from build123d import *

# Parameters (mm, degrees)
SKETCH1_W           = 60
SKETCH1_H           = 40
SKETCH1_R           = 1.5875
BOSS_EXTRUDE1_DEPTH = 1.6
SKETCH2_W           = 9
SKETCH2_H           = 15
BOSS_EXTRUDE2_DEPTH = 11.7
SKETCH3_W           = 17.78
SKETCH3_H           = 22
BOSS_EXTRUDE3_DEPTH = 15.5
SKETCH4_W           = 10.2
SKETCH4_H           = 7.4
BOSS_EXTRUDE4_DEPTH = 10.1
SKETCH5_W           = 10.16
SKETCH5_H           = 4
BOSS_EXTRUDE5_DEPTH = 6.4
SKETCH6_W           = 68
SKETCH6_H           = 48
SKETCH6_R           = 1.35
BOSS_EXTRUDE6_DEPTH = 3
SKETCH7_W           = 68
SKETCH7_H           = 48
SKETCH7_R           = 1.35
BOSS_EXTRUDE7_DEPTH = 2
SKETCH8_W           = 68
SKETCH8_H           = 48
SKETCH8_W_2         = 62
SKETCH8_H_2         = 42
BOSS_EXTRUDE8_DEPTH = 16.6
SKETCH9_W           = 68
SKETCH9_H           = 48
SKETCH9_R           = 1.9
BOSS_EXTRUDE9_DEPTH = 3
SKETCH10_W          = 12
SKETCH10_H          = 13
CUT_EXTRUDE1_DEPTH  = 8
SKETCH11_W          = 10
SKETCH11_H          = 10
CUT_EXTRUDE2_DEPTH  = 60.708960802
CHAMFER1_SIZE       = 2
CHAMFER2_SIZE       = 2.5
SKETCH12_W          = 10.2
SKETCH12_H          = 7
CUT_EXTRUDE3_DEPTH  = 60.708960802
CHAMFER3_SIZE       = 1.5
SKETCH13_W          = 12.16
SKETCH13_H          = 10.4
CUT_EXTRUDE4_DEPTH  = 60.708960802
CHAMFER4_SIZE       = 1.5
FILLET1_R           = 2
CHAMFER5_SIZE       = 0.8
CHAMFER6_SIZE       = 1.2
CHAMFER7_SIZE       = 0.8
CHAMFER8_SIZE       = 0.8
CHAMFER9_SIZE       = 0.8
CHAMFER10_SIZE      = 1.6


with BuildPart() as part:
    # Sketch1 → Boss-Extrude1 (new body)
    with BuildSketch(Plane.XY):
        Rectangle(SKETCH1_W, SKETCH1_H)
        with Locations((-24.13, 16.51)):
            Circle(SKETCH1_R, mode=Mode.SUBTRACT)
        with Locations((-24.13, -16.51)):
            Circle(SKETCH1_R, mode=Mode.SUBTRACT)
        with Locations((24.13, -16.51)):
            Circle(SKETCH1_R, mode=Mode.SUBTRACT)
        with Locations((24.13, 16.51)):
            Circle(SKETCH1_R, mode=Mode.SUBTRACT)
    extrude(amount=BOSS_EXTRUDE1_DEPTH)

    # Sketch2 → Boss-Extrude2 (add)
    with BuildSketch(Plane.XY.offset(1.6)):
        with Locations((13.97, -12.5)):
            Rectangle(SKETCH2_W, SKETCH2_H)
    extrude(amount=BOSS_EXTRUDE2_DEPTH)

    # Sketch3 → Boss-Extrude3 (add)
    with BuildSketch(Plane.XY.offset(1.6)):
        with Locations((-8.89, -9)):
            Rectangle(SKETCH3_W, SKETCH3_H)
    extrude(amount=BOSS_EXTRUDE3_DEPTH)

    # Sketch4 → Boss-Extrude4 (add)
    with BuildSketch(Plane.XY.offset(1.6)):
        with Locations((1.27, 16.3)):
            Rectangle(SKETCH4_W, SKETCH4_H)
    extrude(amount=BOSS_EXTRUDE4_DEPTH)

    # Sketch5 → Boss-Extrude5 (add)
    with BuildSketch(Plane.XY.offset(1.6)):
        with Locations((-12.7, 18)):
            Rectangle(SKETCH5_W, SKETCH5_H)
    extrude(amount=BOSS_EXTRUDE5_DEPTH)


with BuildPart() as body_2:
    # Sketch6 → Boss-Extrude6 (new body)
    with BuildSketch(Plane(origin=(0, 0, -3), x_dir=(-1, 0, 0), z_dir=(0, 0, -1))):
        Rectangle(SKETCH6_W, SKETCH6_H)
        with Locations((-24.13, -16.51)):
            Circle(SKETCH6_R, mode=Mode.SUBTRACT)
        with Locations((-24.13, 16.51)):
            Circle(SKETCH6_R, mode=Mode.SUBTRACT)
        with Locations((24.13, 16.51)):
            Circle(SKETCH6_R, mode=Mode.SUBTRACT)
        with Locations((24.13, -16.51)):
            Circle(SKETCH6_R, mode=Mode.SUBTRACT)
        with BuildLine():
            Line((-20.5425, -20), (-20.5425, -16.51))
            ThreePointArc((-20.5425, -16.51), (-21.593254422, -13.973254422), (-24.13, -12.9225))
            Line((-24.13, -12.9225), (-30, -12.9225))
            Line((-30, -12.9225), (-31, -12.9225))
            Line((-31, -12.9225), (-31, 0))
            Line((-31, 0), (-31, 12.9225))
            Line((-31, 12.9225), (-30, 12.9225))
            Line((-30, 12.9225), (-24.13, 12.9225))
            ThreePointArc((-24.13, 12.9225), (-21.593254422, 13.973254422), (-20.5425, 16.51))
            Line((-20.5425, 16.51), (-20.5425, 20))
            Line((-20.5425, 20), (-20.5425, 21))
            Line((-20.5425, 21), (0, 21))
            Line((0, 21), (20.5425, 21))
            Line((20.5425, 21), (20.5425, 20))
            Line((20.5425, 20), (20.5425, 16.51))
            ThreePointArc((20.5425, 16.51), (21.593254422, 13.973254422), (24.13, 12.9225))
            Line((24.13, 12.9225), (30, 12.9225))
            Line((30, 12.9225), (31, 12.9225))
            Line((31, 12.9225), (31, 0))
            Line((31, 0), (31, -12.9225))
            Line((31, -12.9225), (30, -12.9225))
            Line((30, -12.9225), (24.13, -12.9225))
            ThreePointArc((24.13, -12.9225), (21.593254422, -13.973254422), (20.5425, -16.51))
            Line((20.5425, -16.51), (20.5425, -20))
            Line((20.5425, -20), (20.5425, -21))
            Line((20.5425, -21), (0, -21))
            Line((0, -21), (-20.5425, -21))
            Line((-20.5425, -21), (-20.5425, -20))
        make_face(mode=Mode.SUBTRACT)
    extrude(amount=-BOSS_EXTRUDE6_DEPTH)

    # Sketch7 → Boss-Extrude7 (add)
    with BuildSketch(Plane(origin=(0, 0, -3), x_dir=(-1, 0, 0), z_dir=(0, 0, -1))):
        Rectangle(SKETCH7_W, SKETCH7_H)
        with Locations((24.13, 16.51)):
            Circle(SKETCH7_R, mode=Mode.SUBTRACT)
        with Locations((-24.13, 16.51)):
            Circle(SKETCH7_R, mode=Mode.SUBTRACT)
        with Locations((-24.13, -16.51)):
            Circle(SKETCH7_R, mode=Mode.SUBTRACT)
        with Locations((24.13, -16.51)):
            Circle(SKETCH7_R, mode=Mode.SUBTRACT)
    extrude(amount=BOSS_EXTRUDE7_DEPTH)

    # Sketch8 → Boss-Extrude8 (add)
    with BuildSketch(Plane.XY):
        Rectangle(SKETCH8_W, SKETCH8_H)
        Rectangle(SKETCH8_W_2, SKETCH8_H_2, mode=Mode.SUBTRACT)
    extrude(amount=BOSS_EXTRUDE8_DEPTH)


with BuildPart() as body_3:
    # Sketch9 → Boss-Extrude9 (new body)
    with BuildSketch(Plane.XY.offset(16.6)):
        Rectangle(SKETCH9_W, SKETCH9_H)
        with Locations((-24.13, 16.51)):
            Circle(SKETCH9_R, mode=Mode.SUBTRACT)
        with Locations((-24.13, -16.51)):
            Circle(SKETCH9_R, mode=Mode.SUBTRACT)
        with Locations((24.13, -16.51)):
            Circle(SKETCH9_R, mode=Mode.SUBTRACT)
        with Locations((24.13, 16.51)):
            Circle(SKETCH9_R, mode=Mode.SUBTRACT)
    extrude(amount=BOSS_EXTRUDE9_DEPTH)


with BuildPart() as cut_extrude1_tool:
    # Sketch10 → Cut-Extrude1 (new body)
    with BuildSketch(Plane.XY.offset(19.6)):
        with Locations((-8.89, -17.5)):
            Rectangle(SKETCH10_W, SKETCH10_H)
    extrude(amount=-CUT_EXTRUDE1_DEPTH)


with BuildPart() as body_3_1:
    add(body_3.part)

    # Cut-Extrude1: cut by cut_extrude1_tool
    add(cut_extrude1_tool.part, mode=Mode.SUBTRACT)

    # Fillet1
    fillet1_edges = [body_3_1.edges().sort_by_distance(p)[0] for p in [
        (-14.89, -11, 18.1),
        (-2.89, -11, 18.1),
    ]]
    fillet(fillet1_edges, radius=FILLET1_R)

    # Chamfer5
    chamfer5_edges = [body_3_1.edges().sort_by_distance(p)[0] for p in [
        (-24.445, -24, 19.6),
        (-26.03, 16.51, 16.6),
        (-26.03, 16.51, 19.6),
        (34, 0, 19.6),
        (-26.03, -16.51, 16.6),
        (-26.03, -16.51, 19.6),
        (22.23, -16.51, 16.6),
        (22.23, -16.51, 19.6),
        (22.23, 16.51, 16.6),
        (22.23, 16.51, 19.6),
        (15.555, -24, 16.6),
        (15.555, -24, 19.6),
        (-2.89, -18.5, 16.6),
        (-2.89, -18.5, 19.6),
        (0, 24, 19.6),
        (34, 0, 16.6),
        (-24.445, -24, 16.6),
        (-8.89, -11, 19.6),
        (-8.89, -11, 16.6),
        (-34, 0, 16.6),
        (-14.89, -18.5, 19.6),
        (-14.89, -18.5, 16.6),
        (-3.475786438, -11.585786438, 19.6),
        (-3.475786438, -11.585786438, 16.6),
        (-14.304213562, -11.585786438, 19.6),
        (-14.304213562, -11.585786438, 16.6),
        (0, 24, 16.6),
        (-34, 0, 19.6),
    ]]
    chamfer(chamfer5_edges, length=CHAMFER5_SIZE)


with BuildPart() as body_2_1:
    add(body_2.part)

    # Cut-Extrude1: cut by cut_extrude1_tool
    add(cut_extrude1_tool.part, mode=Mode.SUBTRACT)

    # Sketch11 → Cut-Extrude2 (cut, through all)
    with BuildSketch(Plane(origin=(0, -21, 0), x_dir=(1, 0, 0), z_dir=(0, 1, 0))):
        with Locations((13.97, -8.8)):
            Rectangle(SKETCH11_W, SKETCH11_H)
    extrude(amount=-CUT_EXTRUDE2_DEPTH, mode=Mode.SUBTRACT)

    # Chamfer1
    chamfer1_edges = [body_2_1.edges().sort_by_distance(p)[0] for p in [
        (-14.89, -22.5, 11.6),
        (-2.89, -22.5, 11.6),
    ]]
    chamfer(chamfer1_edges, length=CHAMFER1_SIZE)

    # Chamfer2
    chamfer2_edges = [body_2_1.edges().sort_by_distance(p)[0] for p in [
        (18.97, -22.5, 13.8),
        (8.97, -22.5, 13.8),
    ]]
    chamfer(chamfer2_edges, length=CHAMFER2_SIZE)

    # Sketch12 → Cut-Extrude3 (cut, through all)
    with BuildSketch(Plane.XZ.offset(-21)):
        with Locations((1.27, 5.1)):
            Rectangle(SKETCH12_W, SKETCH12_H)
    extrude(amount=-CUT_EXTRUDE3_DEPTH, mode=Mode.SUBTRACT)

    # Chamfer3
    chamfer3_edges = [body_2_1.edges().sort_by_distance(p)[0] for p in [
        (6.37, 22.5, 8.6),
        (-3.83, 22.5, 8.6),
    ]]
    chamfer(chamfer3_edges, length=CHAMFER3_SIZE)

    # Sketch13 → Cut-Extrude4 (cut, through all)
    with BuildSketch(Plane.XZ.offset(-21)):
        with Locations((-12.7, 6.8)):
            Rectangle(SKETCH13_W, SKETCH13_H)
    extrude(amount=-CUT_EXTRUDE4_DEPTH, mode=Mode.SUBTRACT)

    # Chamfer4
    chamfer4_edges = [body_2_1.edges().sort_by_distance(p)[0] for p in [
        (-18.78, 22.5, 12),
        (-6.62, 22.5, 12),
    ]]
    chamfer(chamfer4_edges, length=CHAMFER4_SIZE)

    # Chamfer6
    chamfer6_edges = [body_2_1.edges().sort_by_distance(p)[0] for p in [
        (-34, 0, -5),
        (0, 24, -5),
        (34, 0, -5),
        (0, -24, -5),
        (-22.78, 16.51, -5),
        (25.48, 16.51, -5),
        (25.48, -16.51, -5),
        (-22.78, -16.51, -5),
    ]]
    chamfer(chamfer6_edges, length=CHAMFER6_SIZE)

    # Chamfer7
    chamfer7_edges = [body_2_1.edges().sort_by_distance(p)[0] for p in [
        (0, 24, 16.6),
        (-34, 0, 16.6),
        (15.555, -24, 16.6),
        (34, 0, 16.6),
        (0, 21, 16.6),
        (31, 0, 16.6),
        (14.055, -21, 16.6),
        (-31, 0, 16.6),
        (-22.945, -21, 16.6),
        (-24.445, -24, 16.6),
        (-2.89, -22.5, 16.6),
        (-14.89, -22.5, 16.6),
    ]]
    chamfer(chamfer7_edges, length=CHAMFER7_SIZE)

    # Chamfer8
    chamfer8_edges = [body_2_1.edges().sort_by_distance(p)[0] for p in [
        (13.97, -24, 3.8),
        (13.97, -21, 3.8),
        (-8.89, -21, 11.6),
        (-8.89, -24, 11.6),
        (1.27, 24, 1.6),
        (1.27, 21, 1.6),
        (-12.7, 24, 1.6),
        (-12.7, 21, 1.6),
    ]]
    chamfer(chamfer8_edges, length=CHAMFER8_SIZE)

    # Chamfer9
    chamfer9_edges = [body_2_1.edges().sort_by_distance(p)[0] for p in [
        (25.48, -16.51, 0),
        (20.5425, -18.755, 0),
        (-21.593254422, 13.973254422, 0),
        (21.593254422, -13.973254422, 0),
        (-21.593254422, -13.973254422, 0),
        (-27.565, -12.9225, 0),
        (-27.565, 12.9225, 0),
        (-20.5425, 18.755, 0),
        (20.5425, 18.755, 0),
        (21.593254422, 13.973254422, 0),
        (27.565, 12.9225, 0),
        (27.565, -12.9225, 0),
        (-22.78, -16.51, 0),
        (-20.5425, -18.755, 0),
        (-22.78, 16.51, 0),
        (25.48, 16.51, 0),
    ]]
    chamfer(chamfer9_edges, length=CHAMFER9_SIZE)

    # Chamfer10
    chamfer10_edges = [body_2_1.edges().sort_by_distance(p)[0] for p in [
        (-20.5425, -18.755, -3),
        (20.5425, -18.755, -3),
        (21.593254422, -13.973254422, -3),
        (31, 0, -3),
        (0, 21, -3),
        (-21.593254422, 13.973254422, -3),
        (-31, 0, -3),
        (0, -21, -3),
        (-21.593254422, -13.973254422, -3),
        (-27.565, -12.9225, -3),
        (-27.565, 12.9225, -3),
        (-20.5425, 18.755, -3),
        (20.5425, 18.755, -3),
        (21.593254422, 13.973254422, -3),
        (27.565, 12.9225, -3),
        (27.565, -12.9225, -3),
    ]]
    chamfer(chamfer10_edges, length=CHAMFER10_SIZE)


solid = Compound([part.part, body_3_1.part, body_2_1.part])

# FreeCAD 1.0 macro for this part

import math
import FreeCAD as App
import Part
import Sketcher

V = App.Vector


def edges_at(feature, points):
    """Names of the edges that pass closest to the given points."""
    edges = feature.Shape.Edges
    near = lambda p: min(range(len(edges)), key=lambda i: edges[i].distToShape(Part.Vertex(*p))[0])
    return sorted({f"Edge{near(p) + 1}" for p in points})

doc = App.newDocument("Part")
body = doc.addObject("PartDesign::Body", "Body")

# Sketch on XY plane
sketch1 = body.newObject("Sketcher::SketchObject", "Sketch")
sketch1.AttachmentSupport = (doc.getObject("XY_Plane"), [""])
sketch1.MapMode = "FlatFace"
sketch1.addGeometry(Part.LineSegment(V(-30, 20, 0), V(-30, -20, 0)), False)
sketch1.addGeometry(Part.LineSegment(V(-30, -20, 0), V(30, -20, 0)), False)
sketch1.addGeometry(Part.LineSegment(V(30, -20, 0), V(30, 20, 0)), False)
sketch1.addGeometry(Part.LineSegment(V(30, 20, 0), V(-30, 20, 0)), False)
sketch1.addGeometry(Part.Circle(V(-24.13, -16.51, 0), V(0, 0, 1), 1.5875), False)
sketch1.addGeometry(Part.Circle(V(24.13, -16.51, 0), V(0, 0, 1), 1.5875), False)
sketch1.addGeometry(Part.Circle(V(-24.13, 16.51, 0), V(0, 0, 1), 1.5875), False)
sketch1.addGeometry(Part.Circle(V(24.13, 16.51, 0), V(0, 0, 1), 1.5875), False)
sketch1.addConstraint(Sketcher.Constraint("Coincident", 0, 2, 1, 1))
sketch1.addConstraint(Sketcher.Constraint("Coincident", 1, 2, 2, 1))
sketch1.addConstraint(Sketcher.Constraint("Coincident", 2, 2, 3, 1))
sketch1.addConstraint(Sketcher.Constraint("Coincident", 3, 2, 0, 1))
sketch1.addConstraint(Sketcher.Constraint("Vertical", 0))
sketch1.addConstraint(Sketcher.Constraint("Horizontal", 1))
sketch1.addConstraint(Sketcher.Constraint("Vertical", 2))
sketch1.addConstraint(Sketcher.Constraint("Horizontal", 3))
sketch1.addConstraint(Sketcher.Constraint("Equal", 4, 5))
sketch1.addConstraint(Sketcher.Constraint("Equal", 5, 6))
sketch1.addConstraint(Sketcher.Constraint("Equal", 6, 7))
sketch1.addConstraint(Sketcher.Constraint("Symmetric", 5, 3, 6, 3, -1, 1))
sketch1.addConstraint(Sketcher.Constraint("Symmetric", 4, 3, 7, 3, -1, 1))
sketch1.addConstraint(Sketcher.Constraint("Symmetric", 0, 2, 2, 2, -1, 1))
sketch1.addConstraint(Sketcher.Constraint("Symmetric", 4, 3, 5, 3, -2))
sketch1.addConstraint(Sketcher.Constraint("DistanceX", 1, 1, 1, 2, 60.0))
sketch1.addConstraint(Sketcher.Constraint("DistanceY", 0, 2, 0, 1, 40.0))
sketch1.addConstraint(Sketcher.Constraint("Diameter", 4, 3.175))
sketch1.addConstraint(Sketcher.Constraint("DistanceX", 4, 3, -1, 1, 24.13))
sketch1.addConstraint(Sketcher.Constraint("DistanceY", 4, 3, -1, 1, 16.51))
pad1 = body.newObject("PartDesign::Pad", "Pad")
pad1.Profile = sketch1
pad1.Length = 1.6

# Sketch on XY plane
sketch2 = body.newObject("Sketcher::SketchObject", "Sketch001")
sketch2.AttachmentSupport = (doc.getObject("XY_Plane"), [""])
sketch2.MapMode = "FlatFace"
sketch2.AttachmentOffset = App.Placement(V(0, 0, 1.6), App.Rotation())
sketch2.addGeometry(Part.LineSegment(V(9.47, -5, 0), V(9.47, -20, 0)), False)
sketch2.addGeometry(Part.LineSegment(V(9.47, -20, 0), V(18.47, -20, 0)), False)
sketch2.addGeometry(Part.LineSegment(V(18.47, -20, 0), V(18.47, -5, 0)), False)
sketch2.addGeometry(Part.LineSegment(V(18.47, -5, 0), V(9.47, -5, 0)), False)
sketch2.addConstraint(Sketcher.Constraint("Coincident", 0, 2, 1, 1))
sketch2.addConstraint(Sketcher.Constraint("Coincident", 1, 2, 2, 1))
sketch2.addConstraint(Sketcher.Constraint("Coincident", 2, 2, 3, 1))
sketch2.addConstraint(Sketcher.Constraint("Coincident", 3, 2, 0, 1))
sketch2.addConstraint(Sketcher.Constraint("Vertical", 0))
sketch2.addConstraint(Sketcher.Constraint("Horizontal", 1))
sketch2.addConstraint(Sketcher.Constraint("Vertical", 2))
sketch2.addConstraint(Sketcher.Constraint("Horizontal", 3))
sketch2.addConstraint(Sketcher.Constraint("DistanceX", 1, 1, 1, 2, 9.0))
sketch2.addConstraint(Sketcher.Constraint("DistanceY", 0, 2, 0, 1, 15.0))
sketch2.addConstraint(Sketcher.Constraint("DistanceY", 0, 2, -1, 1, 20.0))
sketch2.addConstraint(Sketcher.Constraint("DistanceX", -1, 1, 0, 2, 9.47))
pad2 = body.newObject("PartDesign::Pad", "Pad001")
pad2.Profile = sketch2
pad2.Length = 11.7

# Sketch on XY plane
sketch3 = body.newObject("Sketcher::SketchObject", "Sketch002")
sketch3.AttachmentSupport = (doc.getObject("XY_Plane"), [""])
sketch3.MapMode = "FlatFace"
sketch3.AttachmentOffset = App.Placement(V(0, 0, 1.6), App.Rotation())
sketch3.addGeometry(Part.LineSegment(V(-17.78, 2, 0), V(-17.78, -20, 0)), False)
sketch3.addGeometry(Part.LineSegment(V(-17.78, -20, 0), V(0, -20, 0)), False)
sketch3.addGeometry(Part.LineSegment(V(0, -20, 0), V(0, 2, 0)), False)
sketch3.addGeometry(Part.LineSegment(V(0, 2, 0), V(-17.78, 2, 0)), False)
sketch3.addConstraint(Sketcher.Constraint("Coincident", 0, 2, 1, 1))
sketch3.addConstraint(Sketcher.Constraint("Coincident", 1, 2, 2, 1))
sketch3.addConstraint(Sketcher.Constraint("Coincident", 2, 2, 3, 1))
sketch3.addConstraint(Sketcher.Constraint("Coincident", 3, 2, 0, 1))
sketch3.addConstraint(Sketcher.Constraint("Vertical", 0))
sketch3.addConstraint(Sketcher.Constraint("Horizontal", 1))
sketch3.addConstraint(Sketcher.Constraint("Vertical", 2))
sketch3.addConstraint(Sketcher.Constraint("Horizontal", 3))
sketch3.addConstraint(Sketcher.Constraint("PointOnObject", 1, 2, -2))
sketch3.addConstraint(Sketcher.Constraint("DistanceY", 0, 2, 0, 1, 22.0))
sketch3.addConstraint(Sketcher.Constraint("DistanceY", 0, 2, -1, 1, 20.0))
sketch3.addConstraint(Sketcher.Constraint("DistanceX", 1, 1, 1, 2, 17.78))
pad3 = body.newObject("PartDesign::Pad", "Pad002")
pad3.Profile = sketch3
pad3.Length = 15.5

# Sketch on XY plane
sketch4 = body.newObject("Sketcher::SketchObject", "Sketch003")
sketch4.AttachmentSupport = (doc.getObject("XY_Plane"), [""])
sketch4.MapMode = "FlatFace"
sketch4.AttachmentOffset = App.Placement(V(0, 0, 1.6), App.Rotation())
sketch4.addGeometry(Part.LineSegment(V(-3.83, 20, 0), V(-3.83, 12.6, 0)), False)
sketch4.addGeometry(Part.LineSegment(V(-3.83, 12.6, 0), V(6.37, 12.6, 0)), False)
sketch4.addGeometry(Part.LineSegment(V(6.37, 12.6, 0), V(6.37, 20, 0)), False)
sketch4.addGeometry(Part.LineSegment(V(6.37, 20, 0), V(-3.83, 20, 0)), False)
sketch4.addConstraint(Sketcher.Constraint("Coincident", 0, 2, 1, 1))
sketch4.addConstraint(Sketcher.Constraint("Coincident", 1, 2, 2, 1))
sketch4.addConstraint(Sketcher.Constraint("Coincident", 2, 2, 3, 1))
sketch4.addConstraint(Sketcher.Constraint("Coincident", 3, 2, 0, 1))
sketch4.addConstraint(Sketcher.Constraint("Vertical", 0))
sketch4.addConstraint(Sketcher.Constraint("Horizontal", 1))
sketch4.addConstraint(Sketcher.Constraint("Vertical", 2))
sketch4.addConstraint(Sketcher.Constraint("Horizontal", 3))
sketch4.addConstraint(Sketcher.Constraint("DistanceX", 1, 1, 1, 2, 10.2))
sketch4.addConstraint(Sketcher.Constraint("DistanceY", 0, 2, 0, 1, 7.4))
sketch4.addConstraint(Sketcher.Constraint("DistanceY", -1, 1, 2, 2, 20.0))
sketch4.addConstraint(Sketcher.Constraint("DistanceX", 0, 2, -1, 1, 3.83))
pad4 = body.newObject("PartDesign::Pad", "Pad003")
pad4.Profile = sketch4
pad4.Length = 10.1

# Sketch on XY plane
sketch5 = body.newObject("Sketcher::SketchObject", "Sketch004")
sketch5.AttachmentSupport = (doc.getObject("XY_Plane"), [""])
sketch5.MapMode = "FlatFace"
sketch5.AttachmentOffset = App.Placement(V(0, 0, 1.6), App.Rotation())
sketch5.addGeometry(Part.LineSegment(V(-17.78, 20, 0), V(-17.78, 16, 0)), False)
sketch5.addGeometry(Part.LineSegment(V(-17.78, 16, 0), V(-7.62, 16, 0)), False)
sketch5.addGeometry(Part.LineSegment(V(-7.62, 16, 0), V(-7.62, 20, 0)), False)
sketch5.addGeometry(Part.LineSegment(V(-7.62, 20, 0), V(-17.78, 20, 0)), False)
sketch5.addConstraint(Sketcher.Constraint("Coincident", 0, 2, 1, 1))
sketch5.addConstraint(Sketcher.Constraint("Coincident", 1, 2, 2, 1))
sketch5.addConstraint(Sketcher.Constraint("Coincident", 2, 2, 3, 1))
sketch5.addConstraint(Sketcher.Constraint("Coincident", 3, 2, 0, 1))
sketch5.addConstraint(Sketcher.Constraint("Vertical", 0))
sketch5.addConstraint(Sketcher.Constraint("Horizontal", 1))
sketch5.addConstraint(Sketcher.Constraint("Vertical", 2))
sketch5.addConstraint(Sketcher.Constraint("Horizontal", 3))
sketch5.addConstraint(Sketcher.Constraint("DistanceY", 0, 2, 0, 1, 4.0))
sketch5.addConstraint(Sketcher.Constraint("DistanceY", -1, 1, 0, 2, 16.0))
sketch5.addConstraint(Sketcher.Constraint("DistanceX", 1, 1, 1, 2, 10.16))
sketch5.addConstraint(Sketcher.Constraint("DistanceX", 0, 2, -1, 1, 17.78))
pad5 = body.newObject("PartDesign::Pad", "Pad004")
pad5.Profile = sketch5
pad5.Length = 6.4
body2 = doc.addObject("PartDesign::Body", "Body001")

# Sketch on XY plane
sketch6 = body2.newObject("Sketcher::SketchObject", "Sketch005")
sketch6.AttachmentSupport = (doc.getObject("XY_Plane001"), [""])
sketch6.MapMode = "FlatFace"
sketch6.AttachmentOffset = App.Placement(V(0, 0, -3), App.Rotation())
sketch6.addGeometry(Part.LineSegment(V(34, 24, 0), V(34, -24, 0)), False)
sketch6.addGeometry(Part.LineSegment(V(34, -24, 0), V(-34, -24, 0)), False)
sketch6.addGeometry(Part.LineSegment(V(-34, -24, 0), V(-34, 24, 0)), False)
sketch6.addGeometry(Part.LineSegment(V(-34, 24, 0), V(34, 24, 0)), False)
sketch6.addGeometry(Part.Circle(V(24.13, -16.51, 0), V(0, 0, 1), 1.35), False)
sketch6.addGeometry(Part.Circle(V(-24.13, -16.51, 0), V(0, 0, 1), 1.35), False)
sketch6.addGeometry(Part.Circle(V(24.13, 16.51, 0), V(0, 0, 1), 1.35), False)
sketch6.addGeometry(Part.LineSegment(V(20.5425, -21, 0), V(20.5425, -16.51, 0)), False)
sketch6.addGeometry(Part.ArcOfCircle(Part.Circle(V(24.13, -16.51, 0), V(0, 0, 1), 3.5875), math.radians(90), math.radians(180)), False)
sketch6.addGeometry(Part.LineSegment(V(24.13, -12.9225, 0), V(31, -12.9225, 0)), False)
sketch6.addGeometry(Part.LineSegment(V(31, -12.9225, 0), V(31, 12.9225, 0)), False)
sketch6.addGeometry(Part.LineSegment(V(31, 12.9225, 0), V(24.13, 12.9225, 0)), False)
sketch6.addGeometry(Part.ArcOfCircle(Part.Circle(V(24.13, 16.51, 0), V(0, 0, 1), 3.5875), math.radians(180), math.radians(270)), False)
sketch6.addGeometry(Part.LineSegment(V(20.5425, 16.51, 0), V(20.5425, 21, 0)), False)
sketch6.addGeometry(Part.LineSegment(V(20.5425, 21, 0), V(-20.5425, 21, 0)), False)
sketch6.addGeometry(Part.LineSegment(V(-20.5425, 21, 0), V(-20.5425, 16.51, 0)), False)
sketch6.addGeometry(Part.ArcOfCircle(Part.Circle(V(-24.13, 16.51, 0), V(0, 0, 1), 3.5875), math.radians(-90), math.radians(0)), False)
sketch6.addGeometry(Part.LineSegment(V(-24.13, 12.9225, 0), V(-31, 12.9225, 0)), False)
sketch6.addGeometry(Part.LineSegment(V(-31, 12.9225, 0), V(-31, -12.9225, 0)), False)
sketch6.addGeometry(Part.LineSegment(V(-31, -12.9225, 0), V(-24.13, -12.9225, 0)), False)
sketch6.addGeometry(Part.ArcOfCircle(Part.Circle(V(-24.13, -16.51, 0), V(0, 0, 1), 3.5875), math.radians(0), math.radians(90)), False)
sketch6.addGeometry(Part.LineSegment(V(-20.5425, -16.51, 0), V(-20.5425, -21, 0)), False)
sketch6.addGeometry(Part.LineSegment(V(-20.5425, -21, 0), V(20.5425, -21, 0)), False)
sketch6.addGeometry(Part.Circle(V(-24.13, 16.51, 0), V(0, 0, 1), 1.35), False)
sketch6.addConstraint(Sketcher.Constraint("Coincident", 0, 2, 1, 1))
sketch6.addConstraint(Sketcher.Constraint("Coincident", 1, 2, 2, 1))
sketch6.addConstraint(Sketcher.Constraint("Coincident", 2, 2, 3, 1))
sketch6.addConstraint(Sketcher.Constraint("Coincident", 3, 2, 0, 1))
sketch6.addConstraint(Sketcher.Constraint("Tangent", 7, 2, 8, 2))
sketch6.addConstraint(Sketcher.Constraint("Tangent", 8, 1, 9, 1))
sketch6.addConstraint(Sketcher.Constraint("Coincident", 9, 2, 10, 1))
sketch6.addConstraint(Sketcher.Constraint("Coincident", 10, 2, 11, 1))
sketch6.addConstraint(Sketcher.Constraint("Tangent", 11, 2, 12, 2))
sketch6.addConstraint(Sketcher.Constraint("Tangent", 12, 1, 13, 1))
sketch6.addConstraint(Sketcher.Constraint("Coincident", 13, 2, 14, 1))
sketch6.addConstraint(Sketcher.Constraint("Coincident", 14, 2, 15, 1))
sketch6.addConstraint(Sketcher.Constraint("Tangent", 15, 2, 16, 2))
sketch6.addConstraint(Sketcher.Constraint("Tangent", 16, 1, 17, 1))
sketch6.addConstraint(Sketcher.Constraint("Coincident", 17, 2, 18, 1))
sketch6.addConstraint(Sketcher.Constraint("Coincident", 18, 2, 19, 1))
sketch6.addConstraint(Sketcher.Constraint("Tangent", 19, 2, 20, 2))
sketch6.addConstraint(Sketcher.Constraint("Tangent", 20, 1, 21, 1))
sketch6.addConstraint(Sketcher.Constraint("Coincident", 21, 2, 22, 1))
sketch6.addConstraint(Sketcher.Constraint("Coincident", 22, 2, 7, 1))
sketch6.addConstraint(Sketcher.Constraint("Vertical", 0))
sketch6.addConstraint(Sketcher.Constraint("Horizontal", 1))
sketch6.addConstraint(Sketcher.Constraint("Vertical", 2))
sketch6.addConstraint(Sketcher.Constraint("Horizontal", 3))
sketch6.addConstraint(Sketcher.Constraint("Vertical", 7))
sketch6.addConstraint(Sketcher.Constraint("Horizontal", 9))
sketch6.addConstraint(Sketcher.Constraint("Vertical", 10))
sketch6.addConstraint(Sketcher.Constraint("Horizontal", 11))
sketch6.addConstraint(Sketcher.Constraint("Vertical", 13))
sketch6.addConstraint(Sketcher.Constraint("Horizontal", 14))
sketch6.addConstraint(Sketcher.Constraint("Vertical", 15))
sketch6.addConstraint(Sketcher.Constraint("Horizontal", 17))
sketch6.addConstraint(Sketcher.Constraint("Vertical", 18))
sketch6.addConstraint(Sketcher.Constraint("Horizontal", 19))
sketch6.addConstraint(Sketcher.Constraint("Vertical", 21))
sketch6.addConstraint(Sketcher.Constraint("Horizontal", 22))
sketch6.addConstraint(Sketcher.Constraint("Coincident", 8, 3, 4, 3))
sketch6.addConstraint(Sketcher.Constraint("Coincident", 12, 3, 6, 3))
sketch6.addConstraint(Sketcher.Constraint("Coincident", 20, 3, 5, 3))
sketch6.addConstraint(Sketcher.Constraint("Coincident", 23, 3, 16, 3))
sketch6.addConstraint(Sketcher.Constraint("Equal", 4, 5))
sketch6.addConstraint(Sketcher.Constraint("Equal", 5, 6))
sketch6.addConstraint(Sketcher.Constraint("Equal", 8, 12))
sketch6.addConstraint(Sketcher.Constraint("Equal", 12, 16))
sketch6.addConstraint(Sketcher.Constraint("Equal", 16, 20))
sketch6.addConstraint(Sketcher.Constraint("Equal", 6, 23))
sketch6.addConstraint(Sketcher.Constraint("Symmetric", 5, 3, 6, 3, -1, 1))
sketch6.addConstraint(Sketcher.Constraint("Symmetric", 4, 3, 16, 3, -1, 1))
sketch6.addConstraint(Sketcher.Constraint("Symmetric", 0, 2, 2, 2, -1, 1))
sketch6.addConstraint(Sketcher.Constraint("Symmetric", 4, 3, 5, 3, -2))
sketch6.addConstraint(Sketcher.Constraint("Equal", 11, 17))
sketch6.addConstraint(Sketcher.Constraint("Equal", 7, 13))
sketch6.addConstraint(Sketcher.Constraint("Diameter", 4, 2.7))
sketch6.addConstraint(Sketcher.Constraint("DistanceX", 1, 2, 1, 1, 68.0))
sketch6.addConstraint(Sketcher.Constraint("DistanceY", 0, 2, 0, 1, 48.0))
sketch6.addConstraint(Sketcher.Constraint("DistanceX", -1, 1, 9, 2, 31.0))
sketch6.addConstraint(Sketcher.Constraint("DistanceY", -1, 1, 13, 2, 21.0))
sketch6.addConstraint(Sketcher.Constraint("DistanceX", 9, 1, 9, 2, 6.87))
sketch6.addConstraint(Sketcher.Constraint("DistanceY", 7, 1, 7, 2, 4.49))
sketch6.addConstraint(Sketcher.Constraint("Radius", 8, 3.5875))
pad6 = body2.newObject("PartDesign::Pad", "Pad005")
pad6.Profile = sketch6
pad6.Length = 3

# Sketch on XY plane
sketch7 = body2.newObject("Sketcher::SketchObject", "Sketch006")
sketch7.AttachmentSupport = (doc.getObject("XY_Plane001"), [""])
sketch7.MapMode = "FlatFace"
sketch7.AttachmentOffset = App.Placement(V(0, 0, -3), App.Rotation())
sketch7.addGeometry(Part.LineSegment(V(34, 24, 0), V(34, -24, 0)), False)
sketch7.addGeometry(Part.LineSegment(V(34, -24, 0), V(-34, -24, 0)), False)
sketch7.addGeometry(Part.LineSegment(V(-34, -24, 0), V(-34, 24, 0)), False)
sketch7.addGeometry(Part.LineSegment(V(-34, 24, 0), V(34, 24, 0)), False)
sketch7.addGeometry(Part.Circle(V(24.13, -16.51, 0), V(0, 0, 1), 1.35), False)
sketch7.addGeometry(Part.Circle(V(-24.13, -16.51, 0), V(0, 0, 1), 1.35), False)
sketch7.addGeometry(Part.Circle(V(24.13, 16.51, 0), V(0, 0, 1), 1.35), False)
sketch7.addGeometry(Part.Circle(V(-24.13, 16.51, 0), V(0, 0, 1), 1.35), False)
sketch7.addConstraint(Sketcher.Constraint("Coincident", 0, 2, 1, 1))
sketch7.addConstraint(Sketcher.Constraint("Coincident", 1, 2, 2, 1))
sketch7.addConstraint(Sketcher.Constraint("Coincident", 2, 2, 3, 1))
sketch7.addConstraint(Sketcher.Constraint("Coincident", 3, 2, 0, 1))
sketch7.addConstraint(Sketcher.Constraint("Vertical", 0))
sketch7.addConstraint(Sketcher.Constraint("Horizontal", 1))
sketch7.addConstraint(Sketcher.Constraint("Vertical", 2))
sketch7.addConstraint(Sketcher.Constraint("Horizontal", 3))
sketch7.addConstraint(Sketcher.Constraint("Equal", 4, 5))
sketch7.addConstraint(Sketcher.Constraint("Equal", 5, 6))
sketch7.addConstraint(Sketcher.Constraint("Equal", 6, 7))
sketch7.addConstraint(Sketcher.Constraint("Symmetric", 5, 3, 6, 3, -1, 1))
sketch7.addConstraint(Sketcher.Constraint("Symmetric", 4, 3, 7, 3, -1, 1))
sketch7.addConstraint(Sketcher.Constraint("Symmetric", 0, 2, 2, 2, -1, 1))
sketch7.addConstraint(Sketcher.Constraint("Symmetric", 4, 3, 5, 3, -2))
sketch7.addConstraint(Sketcher.Constraint("Diameter", 4, 2.7))
sketch7.addConstraint(Sketcher.Constraint("DistanceX", 1, 2, 1, 1, 68.0))
sketch7.addConstraint(Sketcher.Constraint("DistanceY", 0, 2, 0, 1, 48.0))
sketch7.addConstraint(Sketcher.Constraint("DistanceX", -1, 1, 4, 3, 24.13))
sketch7.addConstraint(Sketcher.Constraint("DistanceY", 4, 3, -1, 1, 16.51))
pad7 = body2.newObject("PartDesign::Pad", "Pad006")
pad7.Profile = sketch7
pad7.Length = 2
pad7.Reversed = True

# Sketch on XY plane
sketch8 = body2.newObject("Sketcher::SketchObject", "Sketch007")
sketch8.AttachmentSupport = (doc.getObject("XY_Plane001"), [""])
sketch8.MapMode = "FlatFace"
sketch8.addGeometry(Part.LineSegment(V(-34, 24, 0), V(-34, -24, 0)), False)
sketch8.addGeometry(Part.LineSegment(V(-34, -24, 0), V(34, -24, 0)), False)
sketch8.addGeometry(Part.LineSegment(V(34, -24, 0), V(34, 24, 0)), False)
sketch8.addGeometry(Part.LineSegment(V(34, 24, 0), V(-34, 24, 0)), False)
sketch8.addGeometry(Part.LineSegment(V(31, -21, 0), V(-31, -21, 0)), False)
sketch8.addGeometry(Part.LineSegment(V(-31, -21, 0), V(-31, 21, 0)), False)
sketch8.addGeometry(Part.LineSegment(V(-31, 21, 0), V(31, 21, 0)), False)
sketch8.addGeometry(Part.LineSegment(V(31, 21, 0), V(31, -21, 0)), False)
sketch8.addConstraint(Sketcher.Constraint("Coincident", 0, 2, 1, 1))
sketch8.addConstraint(Sketcher.Constraint("Coincident", 1, 2, 2, 1))
sketch8.addConstraint(Sketcher.Constraint("Coincident", 2, 2, 3, 1))
sketch8.addConstraint(Sketcher.Constraint("Coincident", 3, 2, 0, 1))
sketch8.addConstraint(Sketcher.Constraint("Coincident", 4, 2, 5, 1))
sketch8.addConstraint(Sketcher.Constraint("Coincident", 5, 2, 6, 1))
sketch8.addConstraint(Sketcher.Constraint("Coincident", 6, 2, 7, 1))
sketch8.addConstraint(Sketcher.Constraint("Coincident", 7, 2, 4, 1))
sketch8.addConstraint(Sketcher.Constraint("Vertical", 0))
sketch8.addConstraint(Sketcher.Constraint("Horizontal", 1))
sketch8.addConstraint(Sketcher.Constraint("Vertical", 2))
sketch8.addConstraint(Sketcher.Constraint("Horizontal", 3))
sketch8.addConstraint(Sketcher.Constraint("Horizontal", 4))
sketch8.addConstraint(Sketcher.Constraint("Vertical", 5))
sketch8.addConstraint(Sketcher.Constraint("Horizontal", 6))
sketch8.addConstraint(Sketcher.Constraint("Vertical", 7))
sketch8.addConstraint(Sketcher.Constraint("Symmetric", 0, 2, 2, 2, -1, 1))
sketch8.addConstraint(Sketcher.Constraint("Symmetric", 4, 2, 6, 2, -1, 1))
sketch8.addConstraint(Sketcher.Constraint("DistanceX", 1, 1, 1, 2, 68.0))
sketch8.addConstraint(Sketcher.Constraint("DistanceX", 4, 2, 4, 1, 62.0))
sketch8.addConstraint(Sketcher.Constraint("DistanceY", 0, 2, 0, 1, 48.0))
sketch8.addConstraint(Sketcher.Constraint("DistanceY", 5, 1, 5, 2, 42.0))
pad8 = body2.newObject("PartDesign::Pad", "Pad007")
pad8.Profile = sketch8
pad8.Length = 16.6
body3 = doc.addObject("PartDesign::Body", "Body002")

# Sketch on XY plane
sketch9 = body3.newObject("Sketcher::SketchObject", "Sketch008")
sketch9.AttachmentSupport = (doc.getObject("XY_Plane002"), [""])
sketch9.MapMode = "FlatFace"
sketch9.AttachmentOffset = App.Placement(V(0, 0, 16.6), App.Rotation())
sketch9.addGeometry(Part.LineSegment(V(-34, 24, 0), V(-34, -24, 0)), False)
sketch9.addGeometry(Part.LineSegment(V(-34, -24, 0), V(34, -24, 0)), False)
sketch9.addGeometry(Part.LineSegment(V(34, -24, 0), V(34, 24, 0)), False)
sketch9.addGeometry(Part.LineSegment(V(34, 24, 0), V(-34, 24, 0)), False)
sketch9.addGeometry(Part.Circle(V(-24.13, -16.51, 0), V(0, 0, 1), 1.9), False)
sketch9.addGeometry(Part.Circle(V(24.13, -16.51, 0), V(0, 0, 1), 1.9), False)
sketch9.addGeometry(Part.Circle(V(-24.13, 16.51, 0), V(0, 0, 1), 1.9), False)
sketch9.addGeometry(Part.Circle(V(24.13, 16.51, 0), V(0, 0, 1), 1.9), False)
sketch9.addConstraint(Sketcher.Constraint("Coincident", 0, 2, 1, 1))
sketch9.addConstraint(Sketcher.Constraint("Coincident", 1, 2, 2, 1))
sketch9.addConstraint(Sketcher.Constraint("Coincident", 2, 2, 3, 1))
sketch9.addConstraint(Sketcher.Constraint("Coincident", 3, 2, 0, 1))
sketch9.addConstraint(Sketcher.Constraint("Vertical", 0))
sketch9.addConstraint(Sketcher.Constraint("Horizontal", 1))
sketch9.addConstraint(Sketcher.Constraint("Vertical", 2))
sketch9.addConstraint(Sketcher.Constraint("Horizontal", 3))
sketch9.addConstraint(Sketcher.Constraint("Equal", 4, 5))
sketch9.addConstraint(Sketcher.Constraint("Equal", 5, 6))
sketch9.addConstraint(Sketcher.Constraint("Equal", 6, 7))
sketch9.addConstraint(Sketcher.Constraint("Symmetric", 5, 3, 6, 3, -1, 1))
sketch9.addConstraint(Sketcher.Constraint("Symmetric", 4, 3, 7, 3, -1, 1))
sketch9.addConstraint(Sketcher.Constraint("Symmetric", 0, 2, 2, 2, -1, 1))
sketch9.addConstraint(Sketcher.Constraint("Symmetric", 4, 3, 5, 3, -2))
sketch9.addConstraint(Sketcher.Constraint("Diameter", 4, 3.8))
sketch9.addConstraint(Sketcher.Constraint("DistanceX", 1, 1, 1, 2, 68.0))
sketch9.addConstraint(Sketcher.Constraint("DistanceY", 0, 2, 0, 1, 48.0))
sketch9.addConstraint(Sketcher.Constraint("DistanceX", 4, 3, -1, 1, 24.13))
sketch9.addConstraint(Sketcher.Constraint("DistanceY", 4, 3, -1, 1, 16.51))
pad9 = body3.newObject("PartDesign::Pad", "Pad008")
pad9.Profile = sketch9
pad9.Length = 3
body4 = doc.addObject("PartDesign::Body", "Body003")

# Sketch on XY plane
sketch10 = body4.newObject("Sketcher::SketchObject", "Sketch009")
sketch10.AttachmentSupport = (doc.getObject("XY_Plane003"), [""])
sketch10.MapMode = "FlatFace"
sketch10.AttachmentOffset = App.Placement(V(0, 0, 19.6), App.Rotation())
sketch10.addGeometry(Part.LineSegment(V(-14.89, -11, 0), V(-14.89, -24, 0)), False)
sketch10.addGeometry(Part.LineSegment(V(-14.89, -24, 0), V(-2.89, -24, 0)), False)
sketch10.addGeometry(Part.LineSegment(V(-2.89, -24, 0), V(-2.89, -11, 0)), False)
sketch10.addGeometry(Part.LineSegment(V(-2.89, -11, 0), V(-14.89, -11, 0)), False)
sketch10.addConstraint(Sketcher.Constraint("Coincident", 0, 2, 1, 1))
sketch10.addConstraint(Sketcher.Constraint("Coincident", 1, 2, 2, 1))
sketch10.addConstraint(Sketcher.Constraint("Coincident", 2, 2, 3, 1))
sketch10.addConstraint(Sketcher.Constraint("Coincident", 3, 2, 0, 1))
sketch10.addConstraint(Sketcher.Constraint("Vertical", 0))
sketch10.addConstraint(Sketcher.Constraint("Horizontal", 1))
sketch10.addConstraint(Sketcher.Constraint("Vertical", 2))
sketch10.addConstraint(Sketcher.Constraint("Horizontal", 3))
sketch10.addConstraint(Sketcher.Constraint("DistanceX", 1, 1, 1, 2, 12.0))
sketch10.addConstraint(Sketcher.Constraint("DistanceY", 0, 2, 0, 1, 13.0))
sketch10.addConstraint(Sketcher.Constraint("DistanceY", 0, 2, -1, 1, 24.0))
sketch10.addConstraint(Sketcher.Constraint("DistanceX", 0, 2, -1, 1, 14.89))
pad10 = body4.newObject("PartDesign::Pad", "Pad009")
pad10.Profile = sketch10
pad10.Length = 8
pad10.Reversed = True
doc.recompute()

body5 = doc.addObject("PartDesign::Body", "Body004")
body5.BaseFeature = body4
boolean = body3.newObject("PartDesign::Boolean", "Boolean")
boolean.Type = "Cut"
boolean.addObjects([body5])
doc.recompute()

fillet = body3.newObject("PartDesign::Fillet", "Fillet")
fillet.Base = (boolean, edges_at(boolean, [(-14.89, -11, 18.1), (-2.89, -11, 18.1)]))
fillet.Radius = 2
doc.recompute()

chamfer = body3.newObject("PartDesign::Chamfer", "Chamfer")
chamfer.Base = (fillet, edges_at(fillet, [
    (-24.445, -24, 19.6),
    (-26.03, 16.51, 16.6),
    (-26.03, 16.51, 19.6),
    (34, 0, 19.6),
    (-26.03, -16.51, 16.6),
    (-26.03, -16.51, 19.6),
    (22.23, -16.51, 16.6),
    (22.23, -16.51, 19.6),
    (22.23, 16.51, 16.6),
    (22.23, 16.51, 19.6),
    (15.555, -24, 16.6),
    (15.555, -24, 19.6),
    (-2.89, -18.5, 16.6),
    (-2.89, -18.5, 19.6),
    (0, 24, 19.6),
    (34, 0, 16.6),
    (-24.445, -24, 16.6),
    (-8.89, -11, 19.6),
    (-8.89, -11, 16.6),
    (-34, 0, 16.6),
    (-14.89, -18.5, 19.6),
    (-14.89, -18.5, 16.6),
    (-3.476, -11.586, 19.6),
    (-3.476, -11.586, 16.6),
    (-14.304, -11.586, 19.6),
    (-14.304, -11.586, 16.6),
    (0, 24, 16.6),
    (-34, 0, 19.6),
]))
chamfer.Size = 0.8
doc.recompute()

boolean2 = body2.newObject("PartDesign::Boolean", "Boolean001")
boolean2.Type = "Cut"
boolean2.addObjects([body4])

# Sketch on XZ plane
sketch11 = body2.newObject("Sketcher::SketchObject", "Sketch010")
sketch11.AttachmentSupport = (doc.getObject("XZ_Plane001"), [""])
sketch11.MapMode = "FlatFace"
sketch11.AttachmentOffset = App.Placement(V(0, 0, 21), App.Rotation())
sketch11.addGeometry(Part.LineSegment(V(8.97, 3.8, 0), V(8.97, 13.8, 0)), False)
sketch11.addGeometry(Part.LineSegment(V(8.97, 13.8, 0), V(18.97, 13.8, 0)), False)
sketch11.addGeometry(Part.LineSegment(V(18.97, 13.8, 0), V(18.97, 3.8, 0)), False)
sketch11.addGeometry(Part.LineSegment(V(18.97, 3.8, 0), V(8.97, 3.8, 0)), False)
sketch11.addConstraint(Sketcher.Constraint("Coincident", 0, 2, 1, 1))
sketch11.addConstraint(Sketcher.Constraint("Coincident", 1, 2, 2, 1))
sketch11.addConstraint(Sketcher.Constraint("Coincident", 2, 2, 3, 1))
sketch11.addConstraint(Sketcher.Constraint("Coincident", 3, 2, 0, 1))
sketch11.addConstraint(Sketcher.Constraint("Vertical", 0))
sketch11.addConstraint(Sketcher.Constraint("Horizontal", 1))
sketch11.addConstraint(Sketcher.Constraint("Vertical", 2))
sketch11.addConstraint(Sketcher.Constraint("Horizontal", 3))
sketch11.addConstraint(Sketcher.Constraint("Equal", 3, 0))
sketch11.addConstraint(Sketcher.Constraint("DistanceX", 1, 1, 1, 2, 10.0))
sketch11.addConstraint(Sketcher.Constraint("DistanceY", -1, 1, 0, 2, 13.8))
sketch11.addConstraint(Sketcher.Constraint("DistanceX", -1, 1, 0, 2, 8.97))
pocket1 = body2.newObject("PartDesign::Pocket", "Pocket")
pocket1.Profile = sketch11
pocket1.Type = "ThroughAll"
pocket1.Reversed = True
doc.recompute()

chamfer2 = body2.newObject("PartDesign::Chamfer", "Chamfer001")
chamfer2.Base = (pocket1, edges_at(pocket1, [(-14.89, -22.5, 11.6), (-2.89, -22.5, 11.6)]))
chamfer2.Size = 2
doc.recompute()

chamfer3 = body2.newObject("PartDesign::Chamfer", "Chamfer002")
chamfer3.Base = (chamfer2, edges_at(chamfer2, [(18.97, -22.5, 13.8), (8.97, -22.5, 13.8)]))
chamfer3.Size = 2.5

# Sketch on XZ plane
sketch12 = body2.newObject("Sketcher::SketchObject", "Sketch011")
sketch12.AttachmentSupport = (doc.getObject("XZ_Plane001"), [""])
sketch12.MapMode = "FlatFace"
sketch12.AttachmentOffset = App.Placement(V(0, 0, -21), App.Rotation())
sketch12.addGeometry(Part.LineSegment(V(-3.83, 8.6, 0), V(-3.83, 1.6, 0)), False)
sketch12.addGeometry(Part.LineSegment(V(-3.83, 1.6, 0), V(6.37, 1.6, 0)), False)
sketch12.addGeometry(Part.LineSegment(V(6.37, 1.6, 0), V(6.37, 8.6, 0)), False)
sketch12.addGeometry(Part.LineSegment(V(6.37, 8.6, 0), V(-3.83, 8.6, 0)), False)
sketch12.addConstraint(Sketcher.Constraint("Coincident", 0, 2, 1, 1))
sketch12.addConstraint(Sketcher.Constraint("Coincident", 1, 2, 2, 1))
sketch12.addConstraint(Sketcher.Constraint("Coincident", 2, 2, 3, 1))
sketch12.addConstraint(Sketcher.Constraint("Coincident", 3, 2, 0, 1))
sketch12.addConstraint(Sketcher.Constraint("Vertical", 0))
sketch12.addConstraint(Sketcher.Constraint("Horizontal", 1))
sketch12.addConstraint(Sketcher.Constraint("Vertical", 2))
sketch12.addConstraint(Sketcher.Constraint("Horizontal", 3))
sketch12.addConstraint(Sketcher.Constraint("DistanceY", 0, 2, 0, 1, 7.0))
sketch12.addConstraint(Sketcher.Constraint("DistanceX", 1, 1, 1, 2, 10.2))
sketch12.addConstraint(Sketcher.Constraint("DistanceY", -1, 1, 0, 2, 1.6))
sketch12.addConstraint(Sketcher.Constraint("DistanceX", 0, 2, -1, 1, 3.83))
pocket2 = body2.newObject("PartDesign::Pocket", "Pocket001")
pocket2.Profile = sketch12
pocket2.Type = "ThroughAll"
doc.recompute()

chamfer4 = body2.newObject("PartDesign::Chamfer", "Chamfer003")
chamfer4.Base = (pocket2, edges_at(pocket2, [(6.37, 22.5, 8.6), (-3.83, 22.5, 8.6)]))
chamfer4.Size = 1.5

# Sketch on XZ plane
sketch13 = body2.newObject("Sketcher::SketchObject", "Sketch012")
sketch13.AttachmentSupport = (doc.getObject("XZ_Plane001"), [""])
sketch13.MapMode = "FlatFace"
sketch13.AttachmentOffset = App.Placement(V(0, 0, -21), App.Rotation())
sketch13.addGeometry(Part.LineSegment(V(-18.78, 12, 0), V(-18.78, 1.6, 0)), False)
sketch13.addGeometry(Part.LineSegment(V(-18.78, 1.6, 0), V(-6.62, 1.6, 0)), False)
sketch13.addGeometry(Part.LineSegment(V(-6.62, 1.6, 0), V(-6.62, 12, 0)), False)
sketch13.addGeometry(Part.LineSegment(V(-6.62, 12, 0), V(-18.78, 12, 0)), False)
sketch13.addConstraint(Sketcher.Constraint("Coincident", 0, 2, 1, 1))
sketch13.addConstraint(Sketcher.Constraint("Coincident", 1, 2, 2, 1))
sketch13.addConstraint(Sketcher.Constraint("Coincident", 2, 2, 3, 1))
sketch13.addConstraint(Sketcher.Constraint("Coincident", 3, 2, 0, 1))
sketch13.addConstraint(Sketcher.Constraint("Vertical", 0))
sketch13.addConstraint(Sketcher.Constraint("Horizontal", 1))
sketch13.addConstraint(Sketcher.Constraint("Vertical", 2))
sketch13.addConstraint(Sketcher.Constraint("Horizontal", 3))
sketch13.addConstraint(Sketcher.Constraint("DistanceY", 0, 2, 0, 1, 10.4))
sketch13.addConstraint(Sketcher.Constraint("DistanceY", -1, 1, 2, 2, 12.0))
sketch13.addConstraint(Sketcher.Constraint("DistanceX", 1, 1, 1, 2, 12.16))
sketch13.addConstraint(Sketcher.Constraint("DistanceX", 0, 2, -1, 1, 18.78))
pocket3 = body2.newObject("PartDesign::Pocket", "Pocket002")
pocket3.Profile = sketch13
pocket3.Type = "ThroughAll"
doc.recompute()

chamfer5 = body2.newObject("PartDesign::Chamfer", "Chamfer004")
chamfer5.Base = (pocket3, edges_at(pocket3, [(-18.78, 22.5, 12), (-6.62, 22.5, 12)]))
chamfer5.Size = 1.5
doc.recompute()

chamfer6 = body2.newObject("PartDesign::Chamfer", "Chamfer005")
chamfer6.Base = (chamfer5, edges_at(chamfer5, [
    (-34, 0, -5),
    (0, 24, -5),
    (34, 0, -5),
    (0, -24, -5),
    (-22.78, 16.51, -5),
    (25.48, 16.51, -5),
    (25.48, -16.51, -5),
    (-22.78, -16.51, -5),
]))
chamfer6.Size = 1.2
doc.recompute()

chamfer7 = body2.newObject("PartDesign::Chamfer", "Chamfer006")
chamfer7.Base = (chamfer6, edges_at(chamfer6, [
    (0, 24, 16.6),
    (-34, 0, 16.6),
    (15.555, -24, 16.6),
    (34, 0, 16.6),
    (0, 21, 16.6),
    (31, 0, 16.6),
    (14.055, -21, 16.6),
    (-31, 0, 16.6),
    (-22.945, -21, 16.6),
    (-24.445, -24, 16.6),
    (-2.89, -22.5, 16.6),
    (-14.89, -22.5, 16.6),
]))
chamfer7.Size = 0.8
doc.recompute()

chamfer8 = body2.newObject("PartDesign::Chamfer", "Chamfer007")
chamfer8.Base = (chamfer7, edges_at(chamfer7, [
    (13.97, -24, 3.8),
    (13.97, -21, 3.8),
    (-8.89, -21, 11.6),
    (-8.89, -24, 11.6),
    (1.27, 24, 1.6),
    (1.27, 21, 1.6),
    (-12.7, 24, 1.6),
    (-12.7, 21, 1.6),
]))
chamfer8.Size = 0.8
doc.recompute()

chamfer9 = body2.newObject("PartDesign::Chamfer", "Chamfer008")
chamfer9.Base = (chamfer8, edges_at(chamfer8, [
    (25.48, -16.51, 0),
    (20.543, -18.755, 0),
    (-21.593, 13.973, 0),
    (21.593, -13.973, 0),
    (-21.593, -13.973, 0),
    (-27.565, -12.922, 0),
    (-27.565, 12.922, 0),
    (-20.543, 18.755, 0),
    (20.543, 18.755, 0),
    (21.593, 13.973, 0),
    (27.565, 12.922, 0),
    (27.565, -12.922, 0),
    (-22.78, -16.51, 0),
    (-20.543, -18.755, 0),
    (-22.78, 16.51, 0),
    (25.48, 16.51, 0),
]))
chamfer9.Size = 0.8
doc.recompute()

chamfer10 = body2.newObject("PartDesign::Chamfer", "Chamfer009")
chamfer10.Base = (chamfer9, edges_at(chamfer9, [
    (-20.543, -18.755, -3),
    (20.543, -18.755, -3),
    (21.593, -13.973, -3),
    (31, 0, -3),
    (0, 21, -3),
    (-21.593, 13.973, -3),
    (-31, 0, -3),
    (0, -21, -3),
    (-21.593, -13.973, -3),
    (-27.565, -12.922, -3),
    (-27.565, 12.922, -3),
    (-20.543, 18.755, -3),
    (20.543, 18.755, -3),
    (21.593, 13.973, -3),
    (27.565, 12.922, -3),
    (27.565, -12.922, -3),
]))
chamfer10.Size = 1.6

doc.recompute()
